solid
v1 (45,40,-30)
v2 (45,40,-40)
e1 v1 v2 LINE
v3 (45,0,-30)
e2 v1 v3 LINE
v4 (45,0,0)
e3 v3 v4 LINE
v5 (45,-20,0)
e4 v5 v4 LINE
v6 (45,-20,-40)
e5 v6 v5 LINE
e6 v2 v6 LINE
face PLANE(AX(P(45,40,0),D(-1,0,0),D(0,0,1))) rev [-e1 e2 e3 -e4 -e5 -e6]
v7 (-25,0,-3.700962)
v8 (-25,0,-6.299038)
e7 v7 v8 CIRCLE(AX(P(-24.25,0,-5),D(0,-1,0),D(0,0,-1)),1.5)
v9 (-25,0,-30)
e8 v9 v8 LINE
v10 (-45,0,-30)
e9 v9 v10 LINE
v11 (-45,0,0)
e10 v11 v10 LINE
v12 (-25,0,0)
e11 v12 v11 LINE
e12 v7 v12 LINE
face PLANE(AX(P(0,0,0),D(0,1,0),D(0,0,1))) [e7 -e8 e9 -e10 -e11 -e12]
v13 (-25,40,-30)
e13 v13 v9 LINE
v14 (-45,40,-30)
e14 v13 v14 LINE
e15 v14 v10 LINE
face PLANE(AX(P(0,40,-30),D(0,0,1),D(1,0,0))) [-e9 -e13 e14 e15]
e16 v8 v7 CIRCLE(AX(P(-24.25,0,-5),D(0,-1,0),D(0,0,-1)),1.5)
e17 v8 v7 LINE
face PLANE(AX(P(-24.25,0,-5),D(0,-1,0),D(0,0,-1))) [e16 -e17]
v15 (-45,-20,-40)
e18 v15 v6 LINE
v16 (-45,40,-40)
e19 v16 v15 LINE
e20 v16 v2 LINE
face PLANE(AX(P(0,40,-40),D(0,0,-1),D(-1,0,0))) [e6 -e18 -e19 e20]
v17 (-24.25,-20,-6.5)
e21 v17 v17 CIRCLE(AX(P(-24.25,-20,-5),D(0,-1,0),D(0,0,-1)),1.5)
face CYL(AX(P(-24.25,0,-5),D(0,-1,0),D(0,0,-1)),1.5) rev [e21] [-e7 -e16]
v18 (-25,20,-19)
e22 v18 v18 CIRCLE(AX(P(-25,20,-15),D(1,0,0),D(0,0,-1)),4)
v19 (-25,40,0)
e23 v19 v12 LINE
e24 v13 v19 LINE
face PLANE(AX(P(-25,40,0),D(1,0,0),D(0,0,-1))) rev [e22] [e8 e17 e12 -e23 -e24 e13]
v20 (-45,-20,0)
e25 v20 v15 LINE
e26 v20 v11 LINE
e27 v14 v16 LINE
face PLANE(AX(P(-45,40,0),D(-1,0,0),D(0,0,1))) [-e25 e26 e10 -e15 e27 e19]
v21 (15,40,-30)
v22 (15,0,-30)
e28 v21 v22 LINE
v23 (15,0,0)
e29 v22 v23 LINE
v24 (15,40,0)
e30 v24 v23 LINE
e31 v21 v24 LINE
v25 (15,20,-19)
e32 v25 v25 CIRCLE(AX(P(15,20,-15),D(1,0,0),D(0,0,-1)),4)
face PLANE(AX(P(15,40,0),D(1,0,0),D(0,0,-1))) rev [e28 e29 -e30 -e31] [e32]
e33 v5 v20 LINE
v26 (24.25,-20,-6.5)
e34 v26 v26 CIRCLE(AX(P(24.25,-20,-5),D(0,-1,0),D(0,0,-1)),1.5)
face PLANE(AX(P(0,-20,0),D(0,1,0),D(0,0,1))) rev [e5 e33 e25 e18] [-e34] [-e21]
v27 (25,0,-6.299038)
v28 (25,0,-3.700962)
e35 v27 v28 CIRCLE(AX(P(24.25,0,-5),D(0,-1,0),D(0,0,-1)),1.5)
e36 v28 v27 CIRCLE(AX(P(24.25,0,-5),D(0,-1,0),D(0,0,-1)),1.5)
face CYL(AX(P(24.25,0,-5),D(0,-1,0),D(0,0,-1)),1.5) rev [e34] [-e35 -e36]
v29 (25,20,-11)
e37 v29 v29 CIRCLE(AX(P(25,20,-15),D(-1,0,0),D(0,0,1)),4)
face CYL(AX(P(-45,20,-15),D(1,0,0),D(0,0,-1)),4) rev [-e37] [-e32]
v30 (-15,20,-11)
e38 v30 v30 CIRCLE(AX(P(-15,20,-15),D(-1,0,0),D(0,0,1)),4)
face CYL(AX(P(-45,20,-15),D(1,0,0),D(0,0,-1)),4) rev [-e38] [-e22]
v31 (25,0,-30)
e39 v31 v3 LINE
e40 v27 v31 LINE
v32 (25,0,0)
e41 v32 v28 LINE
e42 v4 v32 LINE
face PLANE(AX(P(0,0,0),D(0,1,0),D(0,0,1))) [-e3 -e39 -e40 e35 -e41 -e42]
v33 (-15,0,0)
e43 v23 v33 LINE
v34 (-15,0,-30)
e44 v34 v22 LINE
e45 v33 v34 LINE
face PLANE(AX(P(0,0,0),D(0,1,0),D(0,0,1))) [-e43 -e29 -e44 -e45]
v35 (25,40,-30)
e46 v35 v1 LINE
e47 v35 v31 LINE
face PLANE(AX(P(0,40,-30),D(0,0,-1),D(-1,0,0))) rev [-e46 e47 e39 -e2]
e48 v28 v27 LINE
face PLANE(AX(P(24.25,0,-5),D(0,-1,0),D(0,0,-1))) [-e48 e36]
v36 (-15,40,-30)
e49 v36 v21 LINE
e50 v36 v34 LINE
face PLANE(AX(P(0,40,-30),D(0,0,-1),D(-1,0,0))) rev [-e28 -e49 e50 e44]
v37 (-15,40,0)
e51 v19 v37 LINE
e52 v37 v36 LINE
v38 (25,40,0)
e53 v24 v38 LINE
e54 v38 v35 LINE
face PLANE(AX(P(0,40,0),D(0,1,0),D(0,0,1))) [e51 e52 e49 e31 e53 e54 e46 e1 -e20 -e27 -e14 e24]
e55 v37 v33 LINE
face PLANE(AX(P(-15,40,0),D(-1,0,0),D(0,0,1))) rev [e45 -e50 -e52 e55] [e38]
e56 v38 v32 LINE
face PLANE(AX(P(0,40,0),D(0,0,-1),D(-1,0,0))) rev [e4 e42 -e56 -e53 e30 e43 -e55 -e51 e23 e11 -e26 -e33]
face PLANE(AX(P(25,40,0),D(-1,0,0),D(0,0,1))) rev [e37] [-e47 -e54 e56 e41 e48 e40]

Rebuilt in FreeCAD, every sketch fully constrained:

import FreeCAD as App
import Part
import Sketcher

V = App.Vector

doc = App.newDocument("Part")
body = doc.addObject("PartDesign::Body", "Body")

# Sketch on XZ plane
sketch1 = doc.addObject("Sketcher::SketchObject", "Sketch")
body.addObject(sketch1)
sketch1.AttachmentSupport = (doc.XZ_Plane, [""])
sketch1.MapMode = "FlatFace"
sketch1.addGeometry(Part.LineSegment(V(-45, -40, 0), V(-45, -30, 0)), False)
sketch1.addGeometry(Part.LineSegment(V(-45, -30, 0), V(-25, -30, 0)), False)
sketch1.addGeometry(Part.LineSegment(V(-25, -30, 0), V(-25, 0, 0)), False)
sketch1.addGeometry(Part.LineSegment(V(-25, 0, 0), V(-15, 0, 0)), False)
sketch1.addGeometry(Part.LineSegment(V(-15, 0, 0), V(-15, -30, 0)), False)
sketch1.addGeometry(Part.LineSegment(V(-15, -30, 0), V(15, -30, 0)), False)
sketch1.addGeometry(Part.LineSegment(V(15, -30, 0), V(15, 0, 0)), False)
sketch1.addGeometry(Part.LineSegment(V(15, 0, 0), V(25, 0, 0)), False)
sketch1.addGeometry(Part.LineSegment(V(25, 0, 0), V(25, -30, 0)), False)
sketch1.addGeometry(Part.LineSegment(V(25, -30, 0), V(45, -30, 0)), False)
sketch1.addGeometry(Part.LineSegment(V(45, -30, 0), V(45, -40, 0)), False)
sketch1.addGeometry(Part.LineSegment(V(45, -40, 0), V(-45, -40, 0)), False)
sketch1.addConstraint(Sketcher.Constraint("Coincident", 0, 2, 1, 1))
sketch1.addConstraint(Sketcher.Constraint("Coincident", 1, 2, 2, 1))
sketch1.addConstraint(Sketcher.Constraint("Coincident", 2, 2, 3, 1))
sketch1.addConstraint(Sketcher.Constraint("Coincident", 3, 2, 4, 1))
sketch1.addConstraint(Sketcher.Constraint("Coincident", 4, 2, 5, 1))
sketch1.addConstraint(Sketcher.Constraint("Coincident", 5, 2, 6, 1))
sketch1.addConstraint(Sketcher.Constraint("Coincident", 6, 2, 7, 1))
sketch1.addConstraint(Sketcher.Constraint("Coincident", 7, 2, 8, 1))
sketch1.addConstraint(Sketcher.Constraint("Coincident", 8, 2, 9, 1))
sketch1.addConstraint(Sketcher.Constraint("Coincident", 9, 2, 10, 1))
sketch1.addConstraint(Sketcher.Constraint("Coincident", 10, 2, 11, 1))
sketch1.addConstraint(Sketcher.Constraint("Coincident", 11, 2, 0, 1))
sketch1.addConstraint(Sketcher.Constraint("Vertical", 0))
sketch1.addConstraint(Sketcher.Constraint("Horizontal", 1))
sketch1.addConstraint(Sketcher.Constraint("Vertical", 2))
sketch1.addConstraint(Sketcher.Constraint("Horizontal", 3))
sketch1.addConstraint(Sketcher.Constraint("Vertical", 4))
sketch1.addConstraint(Sketcher.Constraint("Horizontal", 5))
sketch1.addConstraint(Sketcher.Constraint("Vertical", 6))
sketch1.addConstraint(Sketcher.Constraint("Horizontal", 7))
sketch1.addConstraint(Sketcher.Constraint("Vertical", 8))
sketch1.addConstraint(Sketcher.Constraint("Horizontal", 9))
sketch1.addConstraint(Sketcher.Constraint("Vertical", 10))
sketch1.addConstraint(Sketcher.Constraint("Horizontal", 11))
sketch1.addConstraint(Sketcher.Constraint("Symmetric", 3, 2, 6, 2, -1, 1))
sketch1.addConstraint(Sketcher.Constraint("Symmetric", 2, 2, 7, 2, -2))
sketch1.addConstraint(Sketcher.Constraint("Symmetric", 0, 2, 9, 2, -2))
sketch1.addConstraint(Sketcher.Constraint("Horizontal", 1, 2, 4, 2))
sketch1.addConstraint(Sketcher.Constraint("Equal", 7, 0))
sketch1.addConstraint(Sketcher.Constraint("Equal", 5, 2))
sketch1.addConstraint(Sketcher.Constraint("DistanceX", 1, 1, 1, 2, 20.0))
sketch1.addConstraint(Sketcher.Constraint("DistanceX", 3, 1, 3, 2, 10.0))
sketch1.addConstraint(Sketcher.Constraint("DistanceX", 5, 1, 5, 2, 30.0))
pad1 = doc.addObject("PartDesign::Pad", "Pad")
body.addObject(pad1)
pad1.Profile = sketch1
pad1.Length = 40
pad1.Reversed = True

# Sketch on YZ plane
sketch2 = doc.addObject("Sketcher::SketchObject", "Sketch001")
body.addObject(sketch2)
sketch2.AttachmentSupport = (doc.YZ_Plane, [""])
sketch2.MapMode = "FlatFace"
sketch2.AttachmentOffset = App.Placement(V(0, 0, -15), App.Rotation())
sketch2.addGeometry(Part.Circle(V(20, -15, 0), V(0, 0, 1), 4), False)
sketch2.addConstraint(Sketcher.Constraint("Diameter", 0, 8.0))
sketch2.addConstraint(Sketcher.Constraint("DistanceX", -1, 1, 0, 3, 20.0))
sketch2.addConstraint(Sketcher.Constraint("DistanceY", 0, 3, -1, 1, 15.0))
pocket1 = doc.addObject("PartDesign::Pocket", "Pocket")
body.addObject(pocket1)
pocket1.Profile = sketch2
pocket1.Type = "ThroughAll"
pocket1.Midplane = True

# Sketch on XZ plane
sketch3 = doc.addObject("Sketcher::SketchObject", "Sketch002")
body.addObject(sketch3)
sketch3.AttachmentSupport = (doc.XZ_Plane, [""])
sketch3.MapMode = "FlatFace"
sketch3.addGeometry(Part.LineSegment(V(-45, 0, 0), V(-45, -40, 0)), False)
sketch3.addGeometry(Part.LineSegment(V(-45, -40, 0), V(45, -40, 0)), False)
sketch3.addGeometry(Part.LineSegment(V(45, -40, 0), V(45, 0, 0)), False)
sketch3.addGeometry(Part.LineSegment(V(45, 0, 0), V(-45, 0, 0)), False)
sketch3.addConstraint(Sketcher.Constraint("Coincident", 0, 2, 1, 1))
sketch3.addConstraint(Sketcher.Constraint("Coincident", 1, 2, 2, 1))
sketch3.addConstraint(Sketcher.Constraint("Coincident", 2, 2, 3, 1))
sketch3.addConstraint(Sketcher.Constraint("Coincident", 3, 2, 0, 1))
sketch3.addConstraint(Sketcher.Constraint("Vertical", 0))
sketch3.addConstraint(Sketcher.Constraint("Horizontal", 1))
sketch3.addConstraint(Sketcher.Constraint("Vertical", 2))
sketch3.addConstraint(Sketcher.Constraint("Horizontal", 3))
sketch3.addConstraint(Sketcher.Constraint("Symmetric", 2, 2, 3, 2, -1, 1))
sketch3.addConstraint(Sketcher.Constraint("DistanceX", 1, 1, 1, 2, 90.0))
sketch3.addConstraint(Sketcher.Constraint("DistanceY", 0, 2, 0, 1, 40.0))
pad2 = doc.addObject("PartDesign::Pad", "Pad001")
body.addObject(pad2)
pad2.Profile = sketch3
pad2.Length = 20

# Sketch on XZ plane
sketch4 = doc.addObject("Sketcher::SketchObject", "Sketch003")
body.addObject(sketch4)
sketch4.AttachmentSupport = (doc.XZ_Plane, [""])
sketch4.MapMode = "FlatFace"
sketch4.AttachmentOffset = App.Placement(V(0, 0, 20), App.Rotation())
sketch4.addGeometry(Part.Circle(V(-24.2, -5, 0), V(0, 0, 1), 1.5), False)
sketch4.addGeometry(Part.Circle(V(24.2, -5, 0), V(0, 0, 1), 1.5), False)
sketch4.addConstraint(Sketcher.Constraint("Equal", 0, 1))
sketch4.addConstraint(Sketcher.Constraint("Symmetric", 0, 3, 1, 3, -2))
sketch4.addConstraint(Sketcher.Constraint("Diameter", 0, 3.0))
sketch4.addConstraint(Sketcher.Constraint("DistanceY", 0, 3, -1, 1, 5.0))
sketch4.addConstraint(Sketcher.Constraint("DistanceX", 0, 3, 1, 3, 48.5))
pocket2 = doc.addObject("PartDesign::Pocket", "Pocket001")
body.addObject(pocket2)
pocket2.Profile = sketch4
pocket2.Length = 20

doc.recompute()
